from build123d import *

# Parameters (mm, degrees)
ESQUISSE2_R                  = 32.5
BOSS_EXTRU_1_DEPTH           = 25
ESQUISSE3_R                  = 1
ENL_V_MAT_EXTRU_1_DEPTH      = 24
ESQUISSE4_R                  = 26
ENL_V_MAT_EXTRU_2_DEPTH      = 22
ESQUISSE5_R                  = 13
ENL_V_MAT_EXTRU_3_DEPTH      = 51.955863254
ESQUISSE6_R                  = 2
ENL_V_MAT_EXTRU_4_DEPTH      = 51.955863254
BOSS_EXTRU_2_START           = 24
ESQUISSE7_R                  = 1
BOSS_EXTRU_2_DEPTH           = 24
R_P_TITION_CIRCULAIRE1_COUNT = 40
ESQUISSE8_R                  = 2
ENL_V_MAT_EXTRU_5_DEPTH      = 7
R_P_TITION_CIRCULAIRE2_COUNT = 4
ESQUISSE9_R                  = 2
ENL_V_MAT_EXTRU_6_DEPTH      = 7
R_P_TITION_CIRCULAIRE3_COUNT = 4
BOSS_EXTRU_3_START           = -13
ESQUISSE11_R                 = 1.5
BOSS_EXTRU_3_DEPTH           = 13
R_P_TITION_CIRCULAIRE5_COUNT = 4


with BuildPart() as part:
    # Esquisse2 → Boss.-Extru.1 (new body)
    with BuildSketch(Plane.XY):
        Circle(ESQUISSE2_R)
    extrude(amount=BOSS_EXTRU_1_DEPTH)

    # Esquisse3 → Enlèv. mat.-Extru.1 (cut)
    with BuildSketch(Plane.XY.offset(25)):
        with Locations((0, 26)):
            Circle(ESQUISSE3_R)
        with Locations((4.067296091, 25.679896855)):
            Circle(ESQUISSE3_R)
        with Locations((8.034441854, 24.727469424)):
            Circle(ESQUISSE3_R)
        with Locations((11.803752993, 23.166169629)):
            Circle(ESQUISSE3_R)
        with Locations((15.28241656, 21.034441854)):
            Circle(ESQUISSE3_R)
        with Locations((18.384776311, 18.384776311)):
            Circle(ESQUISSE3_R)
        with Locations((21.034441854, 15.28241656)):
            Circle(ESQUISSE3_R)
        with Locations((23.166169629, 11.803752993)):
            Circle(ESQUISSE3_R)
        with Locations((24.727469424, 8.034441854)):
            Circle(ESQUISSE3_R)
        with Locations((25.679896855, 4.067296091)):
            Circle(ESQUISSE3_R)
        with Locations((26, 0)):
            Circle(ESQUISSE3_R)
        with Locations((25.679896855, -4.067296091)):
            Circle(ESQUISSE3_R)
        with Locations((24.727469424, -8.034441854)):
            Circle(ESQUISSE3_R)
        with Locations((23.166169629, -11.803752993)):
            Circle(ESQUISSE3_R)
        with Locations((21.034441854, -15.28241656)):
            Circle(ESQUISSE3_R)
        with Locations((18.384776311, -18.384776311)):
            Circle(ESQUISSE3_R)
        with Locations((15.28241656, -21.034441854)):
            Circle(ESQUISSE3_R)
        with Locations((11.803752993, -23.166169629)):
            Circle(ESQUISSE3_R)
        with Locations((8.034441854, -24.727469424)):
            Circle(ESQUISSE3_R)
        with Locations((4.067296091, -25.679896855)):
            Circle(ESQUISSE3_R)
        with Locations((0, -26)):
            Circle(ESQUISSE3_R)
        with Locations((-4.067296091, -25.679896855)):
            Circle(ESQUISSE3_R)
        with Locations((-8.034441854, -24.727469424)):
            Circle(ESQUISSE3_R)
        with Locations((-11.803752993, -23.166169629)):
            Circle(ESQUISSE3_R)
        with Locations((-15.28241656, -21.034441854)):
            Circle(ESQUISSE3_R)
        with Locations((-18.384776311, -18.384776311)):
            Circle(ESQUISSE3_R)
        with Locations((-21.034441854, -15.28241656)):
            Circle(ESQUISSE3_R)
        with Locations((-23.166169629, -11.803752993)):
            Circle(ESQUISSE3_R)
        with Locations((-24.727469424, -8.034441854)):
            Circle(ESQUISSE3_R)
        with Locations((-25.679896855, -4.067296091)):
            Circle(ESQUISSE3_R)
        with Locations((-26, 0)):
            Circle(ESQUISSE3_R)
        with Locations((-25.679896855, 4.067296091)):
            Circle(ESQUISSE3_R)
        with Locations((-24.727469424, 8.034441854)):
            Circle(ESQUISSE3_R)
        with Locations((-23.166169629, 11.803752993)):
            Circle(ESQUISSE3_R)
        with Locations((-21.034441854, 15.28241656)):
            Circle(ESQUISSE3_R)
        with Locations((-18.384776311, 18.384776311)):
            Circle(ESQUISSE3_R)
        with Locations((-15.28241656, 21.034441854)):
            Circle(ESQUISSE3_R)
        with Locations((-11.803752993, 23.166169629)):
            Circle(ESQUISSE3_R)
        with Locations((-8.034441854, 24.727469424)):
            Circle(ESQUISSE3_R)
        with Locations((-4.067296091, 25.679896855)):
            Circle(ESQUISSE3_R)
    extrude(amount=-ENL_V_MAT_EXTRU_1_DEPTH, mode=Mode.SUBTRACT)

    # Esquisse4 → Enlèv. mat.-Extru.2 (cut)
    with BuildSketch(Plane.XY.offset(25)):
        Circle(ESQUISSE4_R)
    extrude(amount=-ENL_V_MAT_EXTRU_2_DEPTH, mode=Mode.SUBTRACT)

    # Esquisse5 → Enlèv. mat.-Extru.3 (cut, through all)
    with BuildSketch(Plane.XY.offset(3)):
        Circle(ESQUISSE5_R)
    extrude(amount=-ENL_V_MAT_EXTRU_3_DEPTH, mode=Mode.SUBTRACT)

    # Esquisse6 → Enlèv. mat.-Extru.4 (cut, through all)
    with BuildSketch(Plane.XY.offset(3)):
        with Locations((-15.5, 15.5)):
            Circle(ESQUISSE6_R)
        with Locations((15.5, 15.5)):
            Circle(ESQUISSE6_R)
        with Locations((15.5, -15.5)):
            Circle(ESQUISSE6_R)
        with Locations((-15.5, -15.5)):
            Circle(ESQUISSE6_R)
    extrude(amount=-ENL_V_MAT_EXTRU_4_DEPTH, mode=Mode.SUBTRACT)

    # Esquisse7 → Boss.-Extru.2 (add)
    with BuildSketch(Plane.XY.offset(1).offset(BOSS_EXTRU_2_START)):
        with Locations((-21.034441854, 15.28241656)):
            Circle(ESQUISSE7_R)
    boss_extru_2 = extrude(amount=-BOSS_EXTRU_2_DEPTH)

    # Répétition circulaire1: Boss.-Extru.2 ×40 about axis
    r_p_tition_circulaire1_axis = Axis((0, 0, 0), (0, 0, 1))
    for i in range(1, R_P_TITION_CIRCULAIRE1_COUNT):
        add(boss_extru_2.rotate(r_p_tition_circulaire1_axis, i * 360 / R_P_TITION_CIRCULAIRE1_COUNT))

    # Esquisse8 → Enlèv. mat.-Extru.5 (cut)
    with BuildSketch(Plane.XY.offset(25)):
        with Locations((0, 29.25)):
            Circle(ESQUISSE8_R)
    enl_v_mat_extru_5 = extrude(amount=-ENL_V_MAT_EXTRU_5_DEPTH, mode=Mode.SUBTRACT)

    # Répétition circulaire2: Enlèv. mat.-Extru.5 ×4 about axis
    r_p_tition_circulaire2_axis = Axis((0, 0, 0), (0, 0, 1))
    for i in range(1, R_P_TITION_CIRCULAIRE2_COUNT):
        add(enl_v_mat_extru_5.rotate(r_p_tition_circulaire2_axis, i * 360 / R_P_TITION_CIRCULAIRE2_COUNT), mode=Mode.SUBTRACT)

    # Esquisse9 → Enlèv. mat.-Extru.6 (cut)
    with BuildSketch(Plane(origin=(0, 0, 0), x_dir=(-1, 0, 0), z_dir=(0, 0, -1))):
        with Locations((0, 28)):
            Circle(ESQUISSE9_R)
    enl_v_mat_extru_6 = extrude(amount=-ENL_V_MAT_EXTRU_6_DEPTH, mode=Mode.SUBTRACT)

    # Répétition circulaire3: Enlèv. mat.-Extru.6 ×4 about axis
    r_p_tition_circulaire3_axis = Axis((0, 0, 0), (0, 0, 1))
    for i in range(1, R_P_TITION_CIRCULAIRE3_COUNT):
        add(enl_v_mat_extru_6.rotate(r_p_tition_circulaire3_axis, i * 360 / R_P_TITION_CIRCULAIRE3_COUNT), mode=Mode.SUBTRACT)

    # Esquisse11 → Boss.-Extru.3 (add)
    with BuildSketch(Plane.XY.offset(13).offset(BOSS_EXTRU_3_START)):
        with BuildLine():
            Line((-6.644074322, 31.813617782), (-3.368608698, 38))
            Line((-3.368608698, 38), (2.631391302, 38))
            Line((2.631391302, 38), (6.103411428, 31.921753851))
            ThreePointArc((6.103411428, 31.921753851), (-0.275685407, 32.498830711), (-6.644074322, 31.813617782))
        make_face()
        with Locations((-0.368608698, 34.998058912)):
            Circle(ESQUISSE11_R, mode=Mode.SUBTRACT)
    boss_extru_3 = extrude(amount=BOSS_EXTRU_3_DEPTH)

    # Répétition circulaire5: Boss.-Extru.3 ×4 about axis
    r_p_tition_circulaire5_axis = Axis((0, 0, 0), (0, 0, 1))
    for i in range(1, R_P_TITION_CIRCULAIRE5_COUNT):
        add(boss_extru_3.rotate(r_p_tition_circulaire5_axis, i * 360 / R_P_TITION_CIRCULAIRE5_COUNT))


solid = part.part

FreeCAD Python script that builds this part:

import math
import FreeCAD as App
import Part
import Sketcher

V = App.Vector

doc = App.newDocument("Part")
body = doc.addObject("PartDesign::Body", "Body")

# Sketch on XY plane
sketch1 = body.newObject("Sketcher::SketchObject", "Sketch")
sketch1.AttachmentSupport = (doc.getObject("XY_Plane"), [""])
sketch1.MapMode = "FlatFace"
sketch1.addGeometry(Part.Circle(V(0, 0, 0), V(0, 0, 1), 32.5), False)
sketch1.addConstraint(Sketcher.Constraint("Coincident", 0, 3, -1, 1))
sketch1.addConstraint(Sketcher.Constraint("Diameter", 0, 65.0))
pad1 = body.newObject("PartDesign::Pad", "Pad")
pad1.Profile = sketch1
pad1.Length = 25

# Sketch on XY plane
sketch2 = body.newObject("Sketcher::SketchObject", "Sketch001")
sketch2.AttachmentSupport = (doc.getObject("XY_Plane"), [""])
sketch2.MapMode = "FlatFace"
sketch2.AttachmentOffset = App.Placement(V(0, 0, 25), App.Rotation())
sketch2.addGeometry(Part.Circle(V(0, 26, 0), V(0, 0, 1), 1), False)
sketch2.addGeometry(Part.Circle(V(4.067296, 25.679897, 0), V(0, 0, 1), 1), False)
sketch2.addGeometry(Part.Circle(V(8.034442, 24.727469, 0), V(0, 0, 1), 1), False)
sketch2.addGeometry(Part.Circle(V(11.803753, 23.16617, 0), V(0, 0, 1), 1), False)
sketch2.addGeometry(Part.Circle(V(15.282417, 21.034442, 0), V(0, 0, 1), 1), False)
sketch2.addGeometry(Part.Circle(V(18.384776, 18.384776, 0), V(0, 0, 1), 1), False)
sketch2.addGeometry(Part.Circle(V(21.034442, 15.282417, 0), V(0, 0, 1), 1), False)
sketch2.addGeometry(Part.Circle(V(23.16617, 11.803753, 0), V(0, 0, 1), 1), False)
sketch2.addGeometry(Part.Circle(V(24.727469, 8.034442, 0), V(0, 0, 1), 1), False)
sketch2.addGeometry(Part.Circle(V(25.679897, 4.067296, 0), V(0, 0, 1), 1), False)
sketch2.addGeometry(Part.Circle(V(26, 0, 0), V(0, 0, 1), 1), False)
sketch2.addGeometry(Part.Circle(V(25.679897, -4.067296, 0), V(0, 0, 1), 1), False)
sketch2.addGeometry(Part.Circle(V(24.727469, -8.034442, 0), V(0, 0, 1), 1), False)
sketch2.addGeometry(Part.Circle(V(23.16617, -11.803753, 0), V(0, 0, 1), 1), False)
sketch2.addGeometry(Part.Circle(V(21.034442, -15.282417, 0), V(0, 0, 1), 1), False)
sketch2.addGeometry(Part.Circle(V(18.384776, -18.384776, 0), V(0, 0, 1), 1), False)
sketch2.addGeometry(Part.Circle(V(15.282417, -21.034442, 0), V(0, 0, 1), 1), False)
sketch2.addGeometry(Part.Circle(V(11.803753, -23.16617, 0), V(0, 0, 1), 1), False)
sketch2.addGeometry(Part.Circle(V(8.034442, -24.727469, 0), V(0, 0, 1), 1), False)
sketch2.addGeometry(Part.Circle(V(4.067296, -25.679897, 0), V(0, 0, 1), 1), False)
sketch2.addGeometry(Part.Circle(V(0, -26, 0), V(0, 0, 1), 1), False)
sketch2.addGeometry(Part.Circle(V(-4.067296, -25.679897, 0), V(0, 0, 1), 1), False)
sketch2.addGeometry(Part.Circle(V(-8.034442, -24.727469, 0), V(0, 0, 1), 1), False)
sketch2.addGeometry(Part.Circle(V(-11.803753, -23.16617, 0), V(0, 0, 1), 1), False)
sketch2.addGeometry(Part.Circle(V(-15.282417, -21.034442, 0), V(0, 0, 1), 1), False)
sketch2.addGeometry(Part.Circle(V(-18.384776, -18.384776, 0), V(0, 0, 1), 1), False)
sketch2.addGeometry(Part.Circle(V(-21.034442, -15.282417, 0), V(0, 0, 1), 1), False)
sketch2.addGeometry(Part.Circle(V(-23.16617, -11.803753, 0), V(0, 0, 1), 1), False)
sketch2.addGeometry(Part.Circle(V(-24.727469, -8.034442, 0), V(0, 0, 1), 1), False)
sketch2.addGeometry(Part.Circle(V(-25.679897, -4.067296, 0), V(0, 0, 1), 1), False)
sketch2.addGeometry(Part.Circle(V(-26, 0, 0), V(0, 0, 1), 1), False)
sketch2.addGeometry(Part.Circle(V(-25.679897, 4.067296, 0), V(0, 0, 1), 1), False)
sketch2.addGeometry(Part.Circle(V(-24.727469, 8.034442, 0), V(0, 0, 1), 1), False)
sketch2.addGeometry(Part.Circle(V(-23.16617, 11.803753, 0), V(0, 0, 1), 1), False)
sketch2.addGeometry(Part.Circle(V(-21.034442, 15.282417, 0), V(0, 0, 1), 1), False)
sketch2.addGeometry(Part.Circle(V(-18.384776, 18.384776, 0), V(0, 0, 1), 1), False)
sketch2.addGeometry(Part.Circle(V(-15.282417, 21.034442, 0), V(0, 0, 1), 1), False)
sketch2.addGeometry(Part.Circle(V(-11.803753, 23.16617, 0), V(0, 0, 1), 1), False)
sketch2.addGeometry(Part.Circle(V(-8.034442, 24.727469, 0), V(0, 0, 1), 1), False)
sketch2.addGeometry(Part.Circle(V(-4.067296, 25.679897, 0), V(0, 0, 1), 1), False)
sketch2.addConstraint(Sketcher.Constraint("Equal", 0, 1))
sketch2.addConstraint(Sketcher.Constraint("Equal", 1, 2))
sketch2.addConstraint(Sketcher.Constraint("Equal", 2, 3))
sketch2.addConstraint(Sketcher.Constraint("Equal", 3, 4))
sketch2.addConstraint(Sketcher.Constraint("Equal", 4, 5))
sketch2.addConstraint(Sketcher.Constraint("Equal", 5, 6))
sketch2.addConstraint(Sketcher.Constraint("Equal", 6, 7))
sketch2.addConstraint(Sketcher.Constraint("Equal", 7, 8))
sketch2.addConstraint(Sketcher.Constraint("Equal", 8, 9))
sketch2.addConstraint(Sketcher.Constraint("Equal", 9, 10))
sketch2.addConstraint(Sketcher.Constraint("Equal", 10, 11))
sketch2.addConstraint(Sketcher.Constraint("Equal", 11, 12))
sketch2.addConstraint(Sketcher.Constraint("Equal", 12, 13))
sketch2.addConstraint(Sketcher.Constraint("Equal", 13, 14))
sketch2.addConstraint(Sketcher.Constraint("Equal", 14, 15))
sketch2.addConstraint(Sketcher.Constraint("Equal", 15, 16))
sketch2.addConstraint(Sketcher.Constraint("Equal", 16, 17))
sketch2.addConstraint(Sketcher.Constraint("Equal", 17, 18))
sketch2.addConstraint(Sketcher.Constraint("Equal", 18, 19))
sketch2.addConstraint(Sketcher.Constraint("Equal", 19, 20))
sketch2.addConstraint(Sketcher.Constraint("Equal", 20, 21))
sketch2.addConstraint(Sketcher.Constraint("Equal", 21, 22))
sketch2.addConstraint(Sketcher.Constraint("Equal", 22, 23))
sketch2.addConstraint(Sketcher.Constraint("Equal", 23, 24))
sketch2.addConstraint(Sketcher.Constraint("Equal", 24, 25))
sketch2.addConstraint(Sketcher.Constraint("Equal", 25, 26))
sketch2.addConstraint(Sketcher.Constraint("Equal", 26, 27))
sketch2.addConstraint(Sketcher.Constraint("Equal", 27, 28))
sketch2.addConstraint(Sketcher.Constraint("Equal", 28, 29))
sketch2.addConstraint(Sketcher.Constraint("Equal", 29, 30))
sketch2.addConstraint(Sketcher.Constraint("Equal", 30, 31))
sketch2.addConstraint(Sketcher.Constraint("Equal", 31, 32))
sketch2.addConstraint(Sketcher.Constraint("Equal", 32, 33))
sketch2.addConstraint(Sketcher.Constraint("Equal", 33, 34))
sketch2.addConstraint(Sketcher.Constraint("Equal", 34, 35))
sketch2.addConstraint(Sketcher.Constraint("Equal", 35, 36))
sketch2.addConstraint(Sketcher.Constraint("Equal", 36, 37))
sketch2.addConstraint(Sketcher.Constraint("Equal", 37, 38))
sketch2.addConstraint(Sketcher.Constraint("Equal", 38, 39))
sketch2.addConstraint(Sketcher.Constraint("Symmetric", 0, 3, 20, 3, -1, 1))
sketch2.addConstraint(Sketcher.Constraint("Symmetric", 1, 3, 21, 3, -1, 1))
sketch2.addConstraint(Sketcher.Constraint("Symmetric", 2, 3, 22, 3, -1, 1))
sketch2.addConstraint(Sketcher.Constraint("Symmetric", 3, 3, 23, 3, -1, 1))
sketch2.addConstraint(Sketcher.Constraint("Symmetric", 4, 3, 24, 3, -1, 1))
sketch2.addConstraint(Sketcher.Constraint("Symmetric", 5, 3, 25, 3, -1, 1))
sketch2.addConstraint(Sketcher.Constraint("Symmetric", 6, 3, 26, 3, -1, 1))
sketch2.addConstraint(Sketcher.Constraint("Symmetric", 7, 3, 27, 3, -1, 1))
sketch2.addConstraint(Sketcher.Constraint("Symmetric", 8, 3, 28, 3, -1, 1))
sketch2.addConstraint(Sketcher.Constraint("Symmetric", 9, 3, 29, 3, -1, 1))
sketch2.addConstraint(Sketcher.Constraint("Symmetric", 10, 3, 30, 3, -1, 1))
sketch2.addConstraint(Sketcher.Constraint("Symmetric", 11, 3, 31, 3, -1, 1))
sketch2.addConstraint(Sketcher.Constraint("Symmetric", 12, 3, 32, 3, -1, 1))
sketch2.addConstraint(Sketcher.Constraint("Symmetric", 13, 3, 33, 3, -1, 1))
sketch2.addConstraint(Sketcher.Constraint("Symmetric", 14, 3, 34, 3, -1, 1))
sketch2.addConstraint(Sketcher.Constraint("Symmetric", 15, 3, 35, 3, -1, 1))
sketch2.addConstraint(Sketcher.Constraint("Symmetric", 16, 3, 36, 3, -1, 1))
sketch2.addConstraint(Sketcher.Constraint("Symmetric", 17, 3, 37, 3, -1, 1))
sketch2.addConstraint(Sketcher.Constraint("Symmetric", 18, 3, 38, 3, -1, 1))
sketch2.addConstraint(Sketcher.Constraint("Symmetric", 19, 3, 39, 3, -1, 1))
sketch2.addConstraint(Sketcher.Constraint("Symmetric", 19, 3, 21, 3, -2))
sketch2.addConstraint(Sketcher.Constraint("Symmetric", 18, 3, 22, 3, -2))
sketch2.addConstraint(Sketcher.Constraint("Symmetric", 17, 3, 23, 3, -2))
sketch2.addConstraint(Sketcher.Constraint("Symmetric", 16, 3, 24, 3, -2))
sketch2.addConstraint(Sketcher.Constraint("Symmetric", 15, 3, 25, 3, -2))
sketch2.addConstraint(Sketcher.Constraint("Symmetric", 14, 3, 26, 3, -2))
sketch2.addConstraint(Sketcher.Constraint("Symmetric", 13, 3, 27, 3, -2))
sketch2.addConstraint(Sketcher.Constraint("Symmetric", 12, 3, 28, 3, -2))
sketch2.addConstraint(Sketcher.Constraint("Symmetric", 11, 3, 29, 3, -2))
sketch2.addConstraint(Sketcher.Constraint("PointOnObject", 0, 3, -2))
sketch2.addConstraint(Sketcher.Constraint("PointOnObject", 10, 3, -1))
sketch2.addConstraint(Sketcher.Constraint("Diameter", 0, 2.0))
sketch2.addConstraint(Sketcher.Constraint("DistanceY", -1, 1, 0, 3, 26.0))
sketch2.addConstraint(Sketcher.Constraint("DistanceX", -1, 1, 10, 3, 26.0))
sketch2.addConstraint(Sketcher.Constraint("DistanceX", 2, 3, 6, 3, 13.0))
sketch2.addConstraint(Sketcher.Constraint("DistanceY", 8, 3, 4, 3, 13.0))
sketch2.addConstraint(Sketcher.Constraint("DistanceY", 3, 3, 2, 3, 1.5613))
sketch2.addConstraint(Sketcher.Constraint("DistanceX", 7, 3, 8, 3, 1.5613))
sketch2.addConstraint(Sketcher.Constraint("DistanceX", -1, 1, 2, 3, 8.034442))
sketch2.addConstraint(Sketcher.Constraint("DistanceY", -1, 1, 2, 3, 24.727469))
sketch2.addConstraint(Sketcher.Constraint("DistanceY", -1, 1, 4, 3, 21.034442))
sketch2.addConstraint(Sketcher.Constraint("DistanceX", -1, 1, 7, 3, 23.16617))
sketch2.addConstraint(Sketcher.Constraint("DistanceX", 2, 3, 3, 3, 3.769311))
sketch2.addConstraint(Sketcher.Constraint("DistanceX", 1, 3, 4, 3, 11.21512))
sketch2.addConstraint(Sketcher.Constraint("DistanceX", 4, 3, 5, 3, 3.10236))
sketch2.addConstraint(Sketcher.Constraint("DistanceY", 5, 3, 1, 3, 7.295121))
sketch2.addConstraint(Sketcher.Constraint("DistanceY", 6, 3, 5, 3, 3.10236))
sketch2.addConstraint(Sketcher.Constraint("DistanceY", 7, 3, 4, 3, 9.230689))
sketch2.addConstraint(Sketcher.Constraint("DistanceY", 9, 3, 6, 3, 11.21512))
sketch2.addConstraint(Sketcher.Constraint("DistanceX", 5, 3, 9, 3, 7.295121))
sketch2.addConstraint(Sketcher.Constraint("DistanceY", 11, 3, 7, 3, 15.871049))
sketch2.addConstraint(Sketcher.Constraint("DistanceX", 21, 3, 17, 3, 15.871049))
pocket1 = body.newObject("PartDesign::Pocket", "Pocket")
pocket1.Profile = sketch2
pocket1.Length = 24

# Sketch on XY plane
sketch3 = body.newObject("Sketcher::SketchObject", "Sketch002")
sketch3.AttachmentSupport = (doc.getObject("XY_Plane"), [""])
sketch3.MapMode = "FlatFace"
sketch3.AttachmentOffset = App.Placement(V(0, 0, 25), App.Rotation())
sketch3.addGeometry(Part.Circle(V(0, 0, 0), V(0, 0, 1), 26), False)
sketch3.addConstraint(Sketcher.Constraint("Coincident", 0, 3, -1, 1))
sketch3.addConstraint(Sketcher.Constraint("Diameter", 0, 52.0))
pocket2 = body.newObject("PartDesign::Pocket", "Pocket001")
pocket2.Profile = sketch3
pocket2.Length = 22

# Sketch on XY plane
sketch4 = body.newObject("Sketcher::SketchObject", "Sketch003")
sketch4.AttachmentSupport = (doc.getObject("XY_Plane"), [""])
sketch4.MapMode = "FlatFace"
sketch4.AttachmentOffset = App.Placement(V(0, 0, 3), App.Rotation())
sketch4.addGeometry(Part.Circle(V(0, 0, 0), V(0, 0, 1), 13), False)
sketch4.addConstraint(Sketcher.Constraint("Coincident", 0, 3, -1, 1))
sketch4.addConstraint(Sketcher.Constraint("Diameter", 0, 26.0))
pocket3 = body.newObject("PartDesign::Pocket", "Pocket002")
pocket3.Profile = sketch4
pocket3.Type = "ThroughAll"

# Sketch on XY plane
sketch5 = body.newObject("Sketcher::SketchObject", "Sketch004")
sketch5.AttachmentSupport = (doc.getObject("XY_Plane"), [""])
sketch5.MapMode = "FlatFace"
sketch5.AttachmentOffset = App.Placement(V(0, 0, 3), App.Rotation())
sketch5.addGeometry(Part.Circle(V(-15.5, 15.5, 0), V(0, 0, 1), 2), False)
sketch5.addGeometry(Part.Circle(V(15.5, 15.5, 0), V(0, 0, 1), 2), False)
sketch5.addGeometry(Part.Circle(V(15.5, -15.5, 0), V(0, 0, 1), 2), False)
sketch5.addGeometry(Part.Circle(V(-15.5, -15.5, 0), V(0, 0, 1), 2), False)
sketch5.addConstraint(Sketcher.Constraint("Equal", 0, 1))
sketch5.addConstraint(Sketcher.Constraint("Equal", 1, 2))
sketch5.addConstraint(Sketcher.Constraint("Equal", 2, 3))
sketch5.addConstraint(Sketcher.Constraint("Symmetric", 0, 3, 2, 3, -1, 1))
sketch5.addConstraint(Sketcher.Constraint("Symmetric", 1, 3, 3, 3, -1, 1))
sketch5.addConstraint(Sketcher.Constraint("Symmetric", 0, 3, 1, 3, -2))
sketch5.addConstraint(Sketcher.Constraint("Diameter", 0, 4.0))
sketch5.addConstraint(Sketcher.Constraint("DistanceX", 0, 3, 1, 3, 31.0))
sketch5.addConstraint(Sketcher.Constraint("DistanceY", 2, 3, 1, 3, 31.0))
pocket4 = body.newObject("PartDesign::Pocket", "Pocket003")
pocket4.Profile = sketch5
pocket4.Type = "ThroughAll"

# Sketch on XY plane
sketch6 = body.newObject("Sketcher::SketchObject", "Sketch005")
sketch6.AttachmentSupport = (doc.getObject("XY_Plane"), [""])
sketch6.MapMode = "FlatFace"
sketch6.AttachmentOffset = App.Placement(V(0, 0, 25), App.Rotation())
sketch6.addGeometry(Part.Circle(V(-21.034442, 15.282417, 0), V(0, 0, 1), 1), False)
sketch6.addConstraint(Sketcher.Constraint("Diameter", 0, 2.0))
sketch6.addConstraint(Sketcher.Constraint("DistanceX", 0, 3, -1, 1, 21.034442))
sketch6.addConstraint(Sketcher.Constraint("DistanceY", -1, 1, 0, 3, 15.282417))
pad2 = body.newObject("PartDesign::Pad", "Pad001")
pad2.Profile = sketch6
pad2.Length = 24
pad2.Reversed = True
doc.recompute()

polarpattern = body.newObject("PartDesign::PolarPattern", "PolarPattern")
polarpattern.Originals = [pad2]
polarpattern.Axis = (doc.getObject("Z_Axis"), [""])
polarpattern.Angle = 360
polarpattern.Occurrences = 40
body.Tip = polarpattern

# Sketch on XY plane
sketch7 = body.newObject("Sketcher::SketchObject", "Sketch006")
sketch7.AttachmentSupport = (doc.getObject("XY_Plane"), [""])
sketch7.MapMode = "FlatFace"
sketch7.AttachmentOffset = App.Placement(V(0, 0, 25), App.Rotation())
sketch7.addGeometry(Part.Circle(V(0, 29.25, 0), V(0, 0, 1), 2), False)
sketch7.addConstraint(Sketcher.Constraint("PointOnObject", 0, 3, -2))
sketch7.addConstraint(Sketcher.Constraint("Diameter", 0, 4.0))
sketch7.addConstraint(Sketcher.Constraint("DistanceY", -1, 1, 0, 3, 29.25))
pocket5 = body.newObject("PartDesign::Pocket", "Pocket004")
pocket5.Profile = sketch7
pocket5.Length = 7
doc.recompute()

polarpattern2 = body.newObject("PartDesign::PolarPattern", "PolarPattern001")
polarpattern2.Originals = [pocket5]
polarpattern2.Axis = (doc.getObject("Z_Axis"), [""])
polarpattern2.Angle = 360
polarpattern2.Occurrences = 4
body.Tip = polarpattern2

# Sketch on XY plane
sketch8 = body.newObject("Sketcher::SketchObject", "Sketch007")
sketch8.AttachmentSupport = (doc.getObject("XY_Plane"), [""])
sketch8.MapMode = "FlatFace"
sketch8.addGeometry(Part.Circle(V(0, 28, 0), V(0, 0, 1), 2), False)
sketch8.addConstraint(Sketcher.Constraint("PointOnObject", 0, 3, -2))
sketch8.addConstraint(Sketcher.Constraint("Diameter", 0, 4.0))
sketch8.addConstraint(Sketcher.Constraint("DistanceY", -1, 1, 0, 3, 28.0))
pocket6 = body.newObject("PartDesign::Pocket", "Pocket005")
pocket6.Profile = sketch8
pocket6.Length = 7
pocket6.Reversed = True
doc.recompute()

polarpattern3 = body.newObject("PartDesign::PolarPattern", "PolarPattern002")
polarpattern3.Originals = [pocket6]
polarpattern3.Axis = (doc.getObject("Z_Axis"), [""])
polarpattern3.Angle = 360
polarpattern3.Occurrences = 4
body.Tip = polarpattern3

# Sketch on XY plane
sketch9 = body.newObject("Sketcher::SketchObject", "Sketch008")
sketch9.AttachmentSupport = (doc.getObject("XY_Plane"), [""])
sketch9.MapMode = "FlatFace"
sketch9.addGeometry(Part.LineSegment(V(-3.368609, 38, 0), V(-6.644074, 31.813618, 0)), False)
sketch9.addGeometry(Part.ArcOfCircle(Part.Circle(V(0, 0, 0), V(0, 0, 1), 32.5), math.radians(79.175736), math.radians(101.796313)), False)
sketch9.addGeometry(Part.LineSegment(V(6.103411, 31.921754, 0), V(2.631391, 38, 0)), False)
sketch9.addGeometry(Part.LineSegment(V(2.631391, 38, 0), V(-3.368609, 38, 0)), False)
sketch9.addGeometry(Part.Circle(V(-0.368609, 34.998059, 0), V(0, 0, 1), 1.5), False)
sketch9.addConstraint(Sketcher.Constraint("Coincident", 0, 2, 1, 2))
sketch9.addConstraint(Sketcher.Constraint("Coincident", 1, 1, 2, 1))
sketch9.addConstraint(Sketcher.Constraint("Coincident", 2, 2, 3, 1))
sketch9.addConstraint(Sketcher.Constraint("Coincident", 3, 2, 0, 1))
sketch9.addConstraint(Sketcher.Constraint("Horizontal", 3))
sketch9.addConstraint(Sketcher.Constraint("Coincident", 1, 3, -1, 1))
sketch9.addConstraint(Sketcher.Constraint("Equal", 0, 2))
sketch9.addConstraint(Sketcher.Constraint("Diameter", 4, 3.0))
sketch9.addConstraint(Sketcher.Constraint("Radius", 1, 32.5))
sketch9.addConstraint(Sketcher.Constraint("DistanceX", 3, 2, 3, 1, 6.0))
sketch9.addConstraint(Sketcher.Constraint("Distance", 0, 7.0))
sketch9.addConstraint(Sketcher.Constraint("DistanceY", -1, 1, 2, 2, 38.0))
sketch9.addConstraint(Sketcher.Constraint("DistanceX", 4, 3, 2, 2, 3.0))
sketch9.addConstraint(Sketcher.Constraint("DistanceX", 4, 3, -1, 1, 0.368609))
sketch9.addConstraint(Sketcher.Constraint("DistanceY", -1, 1, 4, 3, 34.998059))
pad3 = body.newObject("PartDesign::Pad", "Pad002")
pad3.Profile = sketch9
pad3.Length = 13
doc.recompute()

polarpattern4 = body.newObject("PartDesign::PolarPattern", "PolarPattern003")
polarpattern4.Originals = [pad3]
polarpattern4.Axis = (doc.getObject("Z_Axis"), [""])
polarpattern4.Angle = 360
polarpattern4.Occurrences = 4
body.Tip = polarpattern4

doc.recompute()
